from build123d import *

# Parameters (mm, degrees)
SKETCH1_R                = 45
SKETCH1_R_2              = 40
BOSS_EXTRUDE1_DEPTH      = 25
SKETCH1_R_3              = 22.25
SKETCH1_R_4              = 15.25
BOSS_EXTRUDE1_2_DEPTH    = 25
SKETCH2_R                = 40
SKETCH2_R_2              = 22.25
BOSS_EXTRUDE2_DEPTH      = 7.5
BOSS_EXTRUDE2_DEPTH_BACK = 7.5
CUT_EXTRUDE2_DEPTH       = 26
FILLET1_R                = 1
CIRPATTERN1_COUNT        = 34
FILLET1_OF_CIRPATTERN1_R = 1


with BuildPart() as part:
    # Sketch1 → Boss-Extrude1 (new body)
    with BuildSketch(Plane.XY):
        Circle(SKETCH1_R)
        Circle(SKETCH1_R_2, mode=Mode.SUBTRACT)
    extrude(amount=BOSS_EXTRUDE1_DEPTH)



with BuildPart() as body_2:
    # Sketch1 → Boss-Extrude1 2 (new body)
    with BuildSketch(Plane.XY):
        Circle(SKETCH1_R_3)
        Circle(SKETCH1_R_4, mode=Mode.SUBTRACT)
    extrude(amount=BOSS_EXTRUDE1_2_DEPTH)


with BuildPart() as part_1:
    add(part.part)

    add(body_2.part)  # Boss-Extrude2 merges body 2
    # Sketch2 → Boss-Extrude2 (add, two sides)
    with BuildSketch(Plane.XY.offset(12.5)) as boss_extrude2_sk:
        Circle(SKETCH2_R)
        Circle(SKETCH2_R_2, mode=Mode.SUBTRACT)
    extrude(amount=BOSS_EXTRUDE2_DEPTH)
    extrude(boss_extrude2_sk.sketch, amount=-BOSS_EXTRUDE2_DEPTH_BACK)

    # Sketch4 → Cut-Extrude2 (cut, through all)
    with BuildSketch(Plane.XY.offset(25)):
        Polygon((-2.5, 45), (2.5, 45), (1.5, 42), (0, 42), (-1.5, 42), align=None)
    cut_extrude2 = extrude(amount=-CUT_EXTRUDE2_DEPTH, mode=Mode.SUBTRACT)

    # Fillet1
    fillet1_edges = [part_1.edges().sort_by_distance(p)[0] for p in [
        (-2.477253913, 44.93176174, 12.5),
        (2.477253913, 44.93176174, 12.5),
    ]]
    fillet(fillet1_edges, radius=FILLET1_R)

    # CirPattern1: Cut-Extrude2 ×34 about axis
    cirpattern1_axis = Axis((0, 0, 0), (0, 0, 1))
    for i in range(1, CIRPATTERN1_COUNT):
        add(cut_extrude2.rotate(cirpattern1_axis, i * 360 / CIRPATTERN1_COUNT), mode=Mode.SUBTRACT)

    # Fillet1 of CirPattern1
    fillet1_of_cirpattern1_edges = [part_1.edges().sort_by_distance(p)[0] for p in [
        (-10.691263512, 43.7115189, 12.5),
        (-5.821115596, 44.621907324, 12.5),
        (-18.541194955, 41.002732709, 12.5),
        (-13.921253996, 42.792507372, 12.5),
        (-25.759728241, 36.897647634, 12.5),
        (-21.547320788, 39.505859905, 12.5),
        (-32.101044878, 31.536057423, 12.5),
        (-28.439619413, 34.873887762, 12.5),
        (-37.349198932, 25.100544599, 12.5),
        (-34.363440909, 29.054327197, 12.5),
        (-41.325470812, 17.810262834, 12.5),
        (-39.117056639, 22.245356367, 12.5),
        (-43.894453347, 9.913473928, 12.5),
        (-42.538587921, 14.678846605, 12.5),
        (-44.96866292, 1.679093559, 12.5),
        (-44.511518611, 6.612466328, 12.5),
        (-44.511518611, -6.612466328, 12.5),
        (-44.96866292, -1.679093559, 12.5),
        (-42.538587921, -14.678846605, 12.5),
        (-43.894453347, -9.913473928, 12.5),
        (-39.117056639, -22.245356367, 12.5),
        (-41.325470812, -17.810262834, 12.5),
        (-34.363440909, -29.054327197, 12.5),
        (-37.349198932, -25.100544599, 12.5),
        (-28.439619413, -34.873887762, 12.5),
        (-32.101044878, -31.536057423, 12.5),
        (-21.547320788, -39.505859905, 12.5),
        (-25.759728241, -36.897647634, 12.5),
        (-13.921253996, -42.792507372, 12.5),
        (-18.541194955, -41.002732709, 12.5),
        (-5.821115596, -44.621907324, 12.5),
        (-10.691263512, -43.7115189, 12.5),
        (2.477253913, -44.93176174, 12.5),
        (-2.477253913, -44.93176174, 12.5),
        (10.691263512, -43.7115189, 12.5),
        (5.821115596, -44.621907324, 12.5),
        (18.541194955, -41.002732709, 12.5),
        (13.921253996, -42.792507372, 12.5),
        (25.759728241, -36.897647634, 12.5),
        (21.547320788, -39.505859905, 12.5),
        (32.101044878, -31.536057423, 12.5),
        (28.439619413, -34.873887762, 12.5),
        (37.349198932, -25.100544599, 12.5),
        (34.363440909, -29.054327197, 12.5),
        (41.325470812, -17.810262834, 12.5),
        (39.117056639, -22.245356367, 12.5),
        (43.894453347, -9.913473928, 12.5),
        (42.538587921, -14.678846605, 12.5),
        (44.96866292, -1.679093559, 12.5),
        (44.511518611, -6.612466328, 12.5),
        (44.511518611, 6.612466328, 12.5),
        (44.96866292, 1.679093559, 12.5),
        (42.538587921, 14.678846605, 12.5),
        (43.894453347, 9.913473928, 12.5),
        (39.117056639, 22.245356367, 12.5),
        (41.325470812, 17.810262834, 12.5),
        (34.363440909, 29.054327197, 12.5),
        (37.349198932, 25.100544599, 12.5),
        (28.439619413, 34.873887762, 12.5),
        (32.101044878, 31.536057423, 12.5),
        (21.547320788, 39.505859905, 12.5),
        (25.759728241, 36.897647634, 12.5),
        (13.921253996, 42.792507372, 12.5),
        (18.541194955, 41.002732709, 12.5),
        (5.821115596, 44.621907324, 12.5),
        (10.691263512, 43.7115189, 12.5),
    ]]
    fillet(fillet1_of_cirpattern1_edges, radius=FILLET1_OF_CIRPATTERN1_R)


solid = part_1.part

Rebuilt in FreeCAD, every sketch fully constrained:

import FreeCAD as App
import Part
import Sketcher
from FreeCAD import Vector
Q = App.Units.Quantity


def edges_at(feature, points):
    """Names of the edges that pass closest to the given points."""
    edges = feature.Shape.Edges
    near = lambda p: min(range(len(edges)), key=lambda i: edges[i].distToShape(Part.Vertex(*p))[0])
    return sorted({f"Edge{near(p) + 1}" for p in points})

doc = App.newDocument("Part")
body = doc.addObject("PartDesign::Body", "Body")

# Sketch on XY plane
sketch1 = body.newObject("Sketcher::SketchObject", "Sketch")
sketch1.AttachmentSupport = (doc.getObject("XY_Plane"), [""])
sketch1.MapMode = "FlatFace"
sketch1.addGeometry([
    Part.Circle(Vector(0, 0, 0), Vector(0, 0, 1), 45),
    Part.Circle(Vector(0, 0, 0), Vector(0, 0, 1), 40),
], False)
sketch1.addConstraint([
    Sketcher.Constraint("Coincident", 0, 3, -1, 1),
    Sketcher.Constraint("Coincident", 1, 3, -1, 1),
    Sketcher.Constraint("Diameter", 0, Q("90 mm")),
    Sketcher.Constraint("Diameter", 1, Q("80 mm")),
])
pad1 = body.newObject("PartDesign::Pad", "Pad")
pad1.Profile = sketch1
pad1.Length = 25
body2 = doc.addObject("PartDesign::Body", "Body001")

# Sketch on XY plane
sketch2 = body2.newObject("Sketcher::SketchObject", "Sketch001")
sketch2.AttachmentSupport = (doc.getObject("XY_Plane001"), [""])
sketch2.MapMode = "FlatFace"
sketch2.addGeometry([
    Part.Circle(Vector(0, 0, 0), Vector(0, 0, 1), 22),
    Part.Circle(Vector(0, 0, 0), Vector(0, 0, 1), 15),
], False)
sketch2.addConstraint([
    Sketcher.Constraint("Coincident", 0, 3, -1, 1),
    Sketcher.Constraint("Coincident", 1, 3, -1, 1),
    Sketcher.Constraint("Diameter", 0, Q("44.5 mm")),
    Sketcher.Constraint("Diameter", 1, Q("30.5 mm")),
])
pad2 = body2.newObject("PartDesign::Pad", "Pad001")
pad2.Profile = sketch2
pad2.Length = 25
body.AllowCompound = True
doc.recompute()

boolean = body.newObject("PartDesign::Boolean", "Boolean")
boolean.Type = "Fuse"
boolean.addObjects([body2])

# Sketch on XY plane
sketch3 = body.newObject("Sketcher::SketchObject", "Sketch002")
sketch3.AttachmentSupport = (doc.getObject("XY_Plane"), [""])
sketch3.MapMode = "FlatFace"
sketch3.AttachmentOffset = App.Placement(Vector(0, 0, 12.5), App.Rotation())
sketch3.addGeometry([
    Part.Circle(Vector(0, 0, 0), Vector(0, 0, 1), 40),
    Part.Circle(Vector(0, 0, 0), Vector(0, 0, 1), 22),
], False)
sketch3.addConstraint([
    Sketcher.Constraint("Coincident", 0, 3, -1, 1),
    Sketcher.Constraint("Coincident", 1, 3, -1, 1),
    Sketcher.Constraint("Diameter", 0, Q("80 mm")),
    Sketcher.Constraint("Diameter", 1, Q("44.5 mm")),
])
pad3 = body.newObject("PartDesign::Pad", "Pad002")
pad3.Profile = sketch3
pad3.Type = "TwoLengths"
pad3.Length = 7.5
pad3.Length2 = 7.5

# Sketch on XY plane
sketch4 = body.newObject("Sketcher::SketchObject", "Sketch003")
sketch4.AttachmentSupport = (doc.getObject("XY_Plane"), [""])
sketch4.MapMode = "FlatFace"
sketch4.AttachmentOffset = App.Placement(Vector(0, 0, 25), App.Rotation())
sketch4.addGeometry([
    Part.LineSegment(Vector(2.5, 45, 0), Vector(-2.5, 45, 0)),
    Part.LineSegment(Vector(-2.5, 45, 0), Vector(-1.5, 42, 0)),
    Part.LineSegment(Vector(-1.5, 42, 0), Vector(1.5, 42, 0)),
    Part.LineSegment(Vector(1.5, 42, 0), Vector(2.5, 45, 0)),
], False)
sketch4.addConstraint([
    Sketcher.Constraint("Coincident", 0, 2, 1, 1),
    Sketcher.Constraint("Coincident", 1, 2, 2, 1),
    Sketcher.Constraint("Coincident", 2, 2, 3, 1),
    Sketcher.Constraint("Coincident", 3, 2, 0, 1),
    Sketcher.Constraint("Horizontal", 0),
    Sketcher.Constraint("Horizontal", 2),
    Sketcher.Constraint("Equal", 1, 3),
    Sketcher.Constraint("DistanceX", 0, 2, 0, 1, Q("5 mm")),
    Sketcher.Constraint("DistanceX", 2, 1, 2, 2, Q("3 mm")),
    Sketcher.Constraint("DistanceY", -1, 1, 0, 2, Q("45 mm")),
    Sketcher.Constraint("DistanceY", -1, 1, 1, 2, Q("42 mm")),
    Sketcher.Constraint("DistanceX", 0, 2, -1, 1, Q("2.5 mm")),
])
pocket1 = body.newObject("PartDesign::Pocket", "Pocket")
pocket1.Profile = sketch4
pocket1.Type = "ThroughAll"
doc.recompute()

fillet = body.newObject("PartDesign::Fillet", "Fillet")
fillet.Base = (pocket1, edges_at(pocket1, [(-2.477, 44.932, 12.5), (2.477, 44.932, 12.5)]))
fillet.Radius = 1
doc.recompute()

polarpattern = body.newObject("PartDesign::PolarPattern", "PolarPattern")
polarpattern.Originals = [pocket1]
polarpattern.Axis = (doc.getObject("Z_Axis"), [""])
polarpattern.Angle = 360
polarpattern.Occurrences = 34
body.Tip = polarpattern
doc.recompute()

fillet2 = body.newObject("PartDesign::Fillet", "Fillet001")
fillet2.Base = (polarpattern, edges_at(polarpattern, [
    (-10.691, 43.712, 12.5),
    (-5.821, 44.622, 12.5),
    (-18.541, 41.003, 12.5),
    (-13.921, 42.793, 12.5),
    (-25.76, 36.898, 12.5),
    (-21.547, 39.506, 12.5),
    (-32.101, 31.536, 12.5),
    (-28.44, 34.874, 12.5),
    (-37.349, 25.101, 12.5),
    (-34.363, 29.054, 12.5),
    (-41.325, 17.81, 12.5),
    (-39.117, 22.245, 12.5),
    (-43.894, 9.913, 12.5),
    (-42.539, 14.679, 12.5),
    (-44.969, 1.679, 12.5),
    (-44.512, 6.612, 12.5),
    (-44.512, -6.612, 12.5),
    (-44.969, -1.679, 12.5),
    (-42.539, -14.679, 12.5),
    (-43.894, -9.913, 12.5),
    (-39.117, -22.245, 12.5),
    (-41.325, -17.81, 12.5),
    (-34.363, -29.054, 12.5),
    (-37.349, -25.101, 12.5),
    (-28.44, -34.874, 12.5),
    (-32.101, -31.536, 12.5),
    (-21.547, -39.506, 12.5),
    (-25.76, -36.898, 12.5),
    (-13.921, -42.793, 12.5),
    (-18.541, -41.003, 12.5),
    (-5.821, -44.622, 12.5),
    (-10.691, -43.712, 12.5),
    (2.477, -44.932, 12.5),
    (-2.477, -44.932, 12.5),
    (10.691, -43.712, 12.5),
    (5.821, -44.622, 12.5),
    (18.541, -41.003, 12.5),
    (13.921, -42.793, 12.5),
    (25.76, -36.898, 12.5),
    (21.547, -39.506, 12.5),
    (32.101, -31.536, 12.5),
    (28.44, -34.874, 12.5),
    (37.349, -25.101, 12.5),
    (34.363, -29.054, 12.5),
    (41.325, -17.81, 12.5),
    (39.117, -22.245, 12.5),
    (43.894, -9.913, 12.5),
    (42.539, -14.679, 12.5),
    (44.969, -1.679, 12.5),
    (44.512, -6.612, 12.5),
    (44.512, 6.612, 12.5),
    (44.969, 1.679, 12.5),
    (42.539, 14.679, 12.5),
    (43.894, 9.913, 12.5),
    (39.117, 22.245, 12.5),
    (41.325, 17.81, 12.5),
    (34.363, 29.054, 12.5),
    (37.349, 25.101, 12.5),
    (28.44, 34.874, 12.5),
    (32.101, 31.536, 12.5),
    (21.547, 39.506, 12.5),
    (25.76, 36.898, 12.5),
    (13.921, 42.793, 12.5),
    (18.541, 41.003, 12.5),
    (5.821, 44.622, 12.5),
    (10.691, 43.712, 12.5),
]))
fillet2.Radius = 1

doc.recompute()
